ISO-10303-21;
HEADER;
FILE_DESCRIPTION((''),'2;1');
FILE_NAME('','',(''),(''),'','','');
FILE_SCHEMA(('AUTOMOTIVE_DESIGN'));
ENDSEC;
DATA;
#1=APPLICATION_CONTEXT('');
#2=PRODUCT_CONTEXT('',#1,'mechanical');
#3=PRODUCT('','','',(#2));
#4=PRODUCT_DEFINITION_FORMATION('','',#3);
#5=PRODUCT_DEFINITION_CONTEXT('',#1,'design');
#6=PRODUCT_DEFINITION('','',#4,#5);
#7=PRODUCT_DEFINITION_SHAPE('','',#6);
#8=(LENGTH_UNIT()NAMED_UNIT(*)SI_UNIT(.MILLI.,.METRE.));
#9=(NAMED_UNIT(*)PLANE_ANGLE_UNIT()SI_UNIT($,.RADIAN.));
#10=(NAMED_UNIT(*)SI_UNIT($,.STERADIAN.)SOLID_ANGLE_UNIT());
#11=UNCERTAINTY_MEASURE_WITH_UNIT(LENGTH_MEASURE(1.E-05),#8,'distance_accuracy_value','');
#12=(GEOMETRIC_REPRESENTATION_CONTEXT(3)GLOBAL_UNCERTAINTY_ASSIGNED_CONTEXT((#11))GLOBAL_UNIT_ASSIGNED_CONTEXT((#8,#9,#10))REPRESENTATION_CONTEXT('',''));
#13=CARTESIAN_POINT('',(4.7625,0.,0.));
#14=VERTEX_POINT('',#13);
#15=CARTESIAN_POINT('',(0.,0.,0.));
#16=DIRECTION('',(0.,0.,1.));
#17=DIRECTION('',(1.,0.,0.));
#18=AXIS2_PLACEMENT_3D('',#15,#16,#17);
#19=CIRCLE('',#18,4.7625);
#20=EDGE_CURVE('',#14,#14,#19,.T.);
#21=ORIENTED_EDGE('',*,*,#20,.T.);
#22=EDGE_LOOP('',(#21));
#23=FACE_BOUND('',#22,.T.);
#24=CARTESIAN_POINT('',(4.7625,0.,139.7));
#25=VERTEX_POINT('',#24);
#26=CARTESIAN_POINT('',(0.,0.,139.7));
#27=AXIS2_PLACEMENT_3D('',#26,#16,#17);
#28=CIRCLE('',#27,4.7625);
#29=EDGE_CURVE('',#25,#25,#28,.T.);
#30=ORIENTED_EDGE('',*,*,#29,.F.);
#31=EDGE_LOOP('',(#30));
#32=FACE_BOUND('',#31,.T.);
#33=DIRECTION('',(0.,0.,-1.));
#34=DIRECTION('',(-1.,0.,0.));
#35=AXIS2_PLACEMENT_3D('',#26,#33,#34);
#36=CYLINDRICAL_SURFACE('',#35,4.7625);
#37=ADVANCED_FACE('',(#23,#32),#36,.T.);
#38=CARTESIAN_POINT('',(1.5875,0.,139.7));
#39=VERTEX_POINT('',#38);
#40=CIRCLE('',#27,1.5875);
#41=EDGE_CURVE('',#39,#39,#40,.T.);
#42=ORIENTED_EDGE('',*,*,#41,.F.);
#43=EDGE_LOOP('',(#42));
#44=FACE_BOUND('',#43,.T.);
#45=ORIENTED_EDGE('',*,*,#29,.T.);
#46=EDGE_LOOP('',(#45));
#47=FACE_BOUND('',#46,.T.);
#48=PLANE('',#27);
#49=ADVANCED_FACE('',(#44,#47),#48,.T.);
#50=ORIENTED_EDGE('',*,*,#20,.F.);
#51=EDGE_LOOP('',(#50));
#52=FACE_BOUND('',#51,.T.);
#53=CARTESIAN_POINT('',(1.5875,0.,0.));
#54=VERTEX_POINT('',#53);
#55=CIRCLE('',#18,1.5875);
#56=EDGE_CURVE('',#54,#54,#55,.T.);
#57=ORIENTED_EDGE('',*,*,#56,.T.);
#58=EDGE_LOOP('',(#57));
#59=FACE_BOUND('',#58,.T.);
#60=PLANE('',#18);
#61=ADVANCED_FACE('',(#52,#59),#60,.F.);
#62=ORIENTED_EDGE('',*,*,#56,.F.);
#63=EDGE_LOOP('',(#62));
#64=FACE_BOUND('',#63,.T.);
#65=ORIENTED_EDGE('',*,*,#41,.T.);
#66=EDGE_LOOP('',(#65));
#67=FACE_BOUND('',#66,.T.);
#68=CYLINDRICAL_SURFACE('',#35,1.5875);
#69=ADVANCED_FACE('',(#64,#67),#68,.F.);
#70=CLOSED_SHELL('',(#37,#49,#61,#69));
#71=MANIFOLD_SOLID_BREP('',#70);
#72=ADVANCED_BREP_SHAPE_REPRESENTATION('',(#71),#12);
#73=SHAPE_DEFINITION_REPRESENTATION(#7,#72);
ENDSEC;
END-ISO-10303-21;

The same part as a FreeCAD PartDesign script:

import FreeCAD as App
import Part
import Sketcher

V = App.Vector
Q = App.Units.Quantity

doc = App.newDocument("Part")
body = doc.addObject("PartDesign::Body", "Body")

sketch1 = doc.addObject("Sketcher::SketchObject", "Sketch")
body.addObject(sketch1)
sketch1.AttachmentSupport = (doc.XY_Plane, [""])
sketch1.MapMode = "FlatFace"
sketch1.addGeometry([
    Part.Circle(V(0, 0, 0), V(0, 0, 1), 4.7625),
    Part.Circle(V(0, 0, 0), V(0, 0, 1), 1.5875),
], False)
sketch1.addConstraint([
    Sketcher.Constraint("Coincident", 0, 3, -1, 1),
    Sketcher.Constraint("Coincident", 1, 3, -1, 1),
    Sketcher.Constraint("Diameter", 0, Q("0.375 in")),
    Sketcher.Constraint("Diameter", 1, Q("0.125 in")),
])
pad1 = doc.addObject("PartDesign::Pad", "Pad")
body.addObject(pad1)
pad1.Profile = sketch1
pad1.Length = Q("5.5 in")

doc.recompute()
